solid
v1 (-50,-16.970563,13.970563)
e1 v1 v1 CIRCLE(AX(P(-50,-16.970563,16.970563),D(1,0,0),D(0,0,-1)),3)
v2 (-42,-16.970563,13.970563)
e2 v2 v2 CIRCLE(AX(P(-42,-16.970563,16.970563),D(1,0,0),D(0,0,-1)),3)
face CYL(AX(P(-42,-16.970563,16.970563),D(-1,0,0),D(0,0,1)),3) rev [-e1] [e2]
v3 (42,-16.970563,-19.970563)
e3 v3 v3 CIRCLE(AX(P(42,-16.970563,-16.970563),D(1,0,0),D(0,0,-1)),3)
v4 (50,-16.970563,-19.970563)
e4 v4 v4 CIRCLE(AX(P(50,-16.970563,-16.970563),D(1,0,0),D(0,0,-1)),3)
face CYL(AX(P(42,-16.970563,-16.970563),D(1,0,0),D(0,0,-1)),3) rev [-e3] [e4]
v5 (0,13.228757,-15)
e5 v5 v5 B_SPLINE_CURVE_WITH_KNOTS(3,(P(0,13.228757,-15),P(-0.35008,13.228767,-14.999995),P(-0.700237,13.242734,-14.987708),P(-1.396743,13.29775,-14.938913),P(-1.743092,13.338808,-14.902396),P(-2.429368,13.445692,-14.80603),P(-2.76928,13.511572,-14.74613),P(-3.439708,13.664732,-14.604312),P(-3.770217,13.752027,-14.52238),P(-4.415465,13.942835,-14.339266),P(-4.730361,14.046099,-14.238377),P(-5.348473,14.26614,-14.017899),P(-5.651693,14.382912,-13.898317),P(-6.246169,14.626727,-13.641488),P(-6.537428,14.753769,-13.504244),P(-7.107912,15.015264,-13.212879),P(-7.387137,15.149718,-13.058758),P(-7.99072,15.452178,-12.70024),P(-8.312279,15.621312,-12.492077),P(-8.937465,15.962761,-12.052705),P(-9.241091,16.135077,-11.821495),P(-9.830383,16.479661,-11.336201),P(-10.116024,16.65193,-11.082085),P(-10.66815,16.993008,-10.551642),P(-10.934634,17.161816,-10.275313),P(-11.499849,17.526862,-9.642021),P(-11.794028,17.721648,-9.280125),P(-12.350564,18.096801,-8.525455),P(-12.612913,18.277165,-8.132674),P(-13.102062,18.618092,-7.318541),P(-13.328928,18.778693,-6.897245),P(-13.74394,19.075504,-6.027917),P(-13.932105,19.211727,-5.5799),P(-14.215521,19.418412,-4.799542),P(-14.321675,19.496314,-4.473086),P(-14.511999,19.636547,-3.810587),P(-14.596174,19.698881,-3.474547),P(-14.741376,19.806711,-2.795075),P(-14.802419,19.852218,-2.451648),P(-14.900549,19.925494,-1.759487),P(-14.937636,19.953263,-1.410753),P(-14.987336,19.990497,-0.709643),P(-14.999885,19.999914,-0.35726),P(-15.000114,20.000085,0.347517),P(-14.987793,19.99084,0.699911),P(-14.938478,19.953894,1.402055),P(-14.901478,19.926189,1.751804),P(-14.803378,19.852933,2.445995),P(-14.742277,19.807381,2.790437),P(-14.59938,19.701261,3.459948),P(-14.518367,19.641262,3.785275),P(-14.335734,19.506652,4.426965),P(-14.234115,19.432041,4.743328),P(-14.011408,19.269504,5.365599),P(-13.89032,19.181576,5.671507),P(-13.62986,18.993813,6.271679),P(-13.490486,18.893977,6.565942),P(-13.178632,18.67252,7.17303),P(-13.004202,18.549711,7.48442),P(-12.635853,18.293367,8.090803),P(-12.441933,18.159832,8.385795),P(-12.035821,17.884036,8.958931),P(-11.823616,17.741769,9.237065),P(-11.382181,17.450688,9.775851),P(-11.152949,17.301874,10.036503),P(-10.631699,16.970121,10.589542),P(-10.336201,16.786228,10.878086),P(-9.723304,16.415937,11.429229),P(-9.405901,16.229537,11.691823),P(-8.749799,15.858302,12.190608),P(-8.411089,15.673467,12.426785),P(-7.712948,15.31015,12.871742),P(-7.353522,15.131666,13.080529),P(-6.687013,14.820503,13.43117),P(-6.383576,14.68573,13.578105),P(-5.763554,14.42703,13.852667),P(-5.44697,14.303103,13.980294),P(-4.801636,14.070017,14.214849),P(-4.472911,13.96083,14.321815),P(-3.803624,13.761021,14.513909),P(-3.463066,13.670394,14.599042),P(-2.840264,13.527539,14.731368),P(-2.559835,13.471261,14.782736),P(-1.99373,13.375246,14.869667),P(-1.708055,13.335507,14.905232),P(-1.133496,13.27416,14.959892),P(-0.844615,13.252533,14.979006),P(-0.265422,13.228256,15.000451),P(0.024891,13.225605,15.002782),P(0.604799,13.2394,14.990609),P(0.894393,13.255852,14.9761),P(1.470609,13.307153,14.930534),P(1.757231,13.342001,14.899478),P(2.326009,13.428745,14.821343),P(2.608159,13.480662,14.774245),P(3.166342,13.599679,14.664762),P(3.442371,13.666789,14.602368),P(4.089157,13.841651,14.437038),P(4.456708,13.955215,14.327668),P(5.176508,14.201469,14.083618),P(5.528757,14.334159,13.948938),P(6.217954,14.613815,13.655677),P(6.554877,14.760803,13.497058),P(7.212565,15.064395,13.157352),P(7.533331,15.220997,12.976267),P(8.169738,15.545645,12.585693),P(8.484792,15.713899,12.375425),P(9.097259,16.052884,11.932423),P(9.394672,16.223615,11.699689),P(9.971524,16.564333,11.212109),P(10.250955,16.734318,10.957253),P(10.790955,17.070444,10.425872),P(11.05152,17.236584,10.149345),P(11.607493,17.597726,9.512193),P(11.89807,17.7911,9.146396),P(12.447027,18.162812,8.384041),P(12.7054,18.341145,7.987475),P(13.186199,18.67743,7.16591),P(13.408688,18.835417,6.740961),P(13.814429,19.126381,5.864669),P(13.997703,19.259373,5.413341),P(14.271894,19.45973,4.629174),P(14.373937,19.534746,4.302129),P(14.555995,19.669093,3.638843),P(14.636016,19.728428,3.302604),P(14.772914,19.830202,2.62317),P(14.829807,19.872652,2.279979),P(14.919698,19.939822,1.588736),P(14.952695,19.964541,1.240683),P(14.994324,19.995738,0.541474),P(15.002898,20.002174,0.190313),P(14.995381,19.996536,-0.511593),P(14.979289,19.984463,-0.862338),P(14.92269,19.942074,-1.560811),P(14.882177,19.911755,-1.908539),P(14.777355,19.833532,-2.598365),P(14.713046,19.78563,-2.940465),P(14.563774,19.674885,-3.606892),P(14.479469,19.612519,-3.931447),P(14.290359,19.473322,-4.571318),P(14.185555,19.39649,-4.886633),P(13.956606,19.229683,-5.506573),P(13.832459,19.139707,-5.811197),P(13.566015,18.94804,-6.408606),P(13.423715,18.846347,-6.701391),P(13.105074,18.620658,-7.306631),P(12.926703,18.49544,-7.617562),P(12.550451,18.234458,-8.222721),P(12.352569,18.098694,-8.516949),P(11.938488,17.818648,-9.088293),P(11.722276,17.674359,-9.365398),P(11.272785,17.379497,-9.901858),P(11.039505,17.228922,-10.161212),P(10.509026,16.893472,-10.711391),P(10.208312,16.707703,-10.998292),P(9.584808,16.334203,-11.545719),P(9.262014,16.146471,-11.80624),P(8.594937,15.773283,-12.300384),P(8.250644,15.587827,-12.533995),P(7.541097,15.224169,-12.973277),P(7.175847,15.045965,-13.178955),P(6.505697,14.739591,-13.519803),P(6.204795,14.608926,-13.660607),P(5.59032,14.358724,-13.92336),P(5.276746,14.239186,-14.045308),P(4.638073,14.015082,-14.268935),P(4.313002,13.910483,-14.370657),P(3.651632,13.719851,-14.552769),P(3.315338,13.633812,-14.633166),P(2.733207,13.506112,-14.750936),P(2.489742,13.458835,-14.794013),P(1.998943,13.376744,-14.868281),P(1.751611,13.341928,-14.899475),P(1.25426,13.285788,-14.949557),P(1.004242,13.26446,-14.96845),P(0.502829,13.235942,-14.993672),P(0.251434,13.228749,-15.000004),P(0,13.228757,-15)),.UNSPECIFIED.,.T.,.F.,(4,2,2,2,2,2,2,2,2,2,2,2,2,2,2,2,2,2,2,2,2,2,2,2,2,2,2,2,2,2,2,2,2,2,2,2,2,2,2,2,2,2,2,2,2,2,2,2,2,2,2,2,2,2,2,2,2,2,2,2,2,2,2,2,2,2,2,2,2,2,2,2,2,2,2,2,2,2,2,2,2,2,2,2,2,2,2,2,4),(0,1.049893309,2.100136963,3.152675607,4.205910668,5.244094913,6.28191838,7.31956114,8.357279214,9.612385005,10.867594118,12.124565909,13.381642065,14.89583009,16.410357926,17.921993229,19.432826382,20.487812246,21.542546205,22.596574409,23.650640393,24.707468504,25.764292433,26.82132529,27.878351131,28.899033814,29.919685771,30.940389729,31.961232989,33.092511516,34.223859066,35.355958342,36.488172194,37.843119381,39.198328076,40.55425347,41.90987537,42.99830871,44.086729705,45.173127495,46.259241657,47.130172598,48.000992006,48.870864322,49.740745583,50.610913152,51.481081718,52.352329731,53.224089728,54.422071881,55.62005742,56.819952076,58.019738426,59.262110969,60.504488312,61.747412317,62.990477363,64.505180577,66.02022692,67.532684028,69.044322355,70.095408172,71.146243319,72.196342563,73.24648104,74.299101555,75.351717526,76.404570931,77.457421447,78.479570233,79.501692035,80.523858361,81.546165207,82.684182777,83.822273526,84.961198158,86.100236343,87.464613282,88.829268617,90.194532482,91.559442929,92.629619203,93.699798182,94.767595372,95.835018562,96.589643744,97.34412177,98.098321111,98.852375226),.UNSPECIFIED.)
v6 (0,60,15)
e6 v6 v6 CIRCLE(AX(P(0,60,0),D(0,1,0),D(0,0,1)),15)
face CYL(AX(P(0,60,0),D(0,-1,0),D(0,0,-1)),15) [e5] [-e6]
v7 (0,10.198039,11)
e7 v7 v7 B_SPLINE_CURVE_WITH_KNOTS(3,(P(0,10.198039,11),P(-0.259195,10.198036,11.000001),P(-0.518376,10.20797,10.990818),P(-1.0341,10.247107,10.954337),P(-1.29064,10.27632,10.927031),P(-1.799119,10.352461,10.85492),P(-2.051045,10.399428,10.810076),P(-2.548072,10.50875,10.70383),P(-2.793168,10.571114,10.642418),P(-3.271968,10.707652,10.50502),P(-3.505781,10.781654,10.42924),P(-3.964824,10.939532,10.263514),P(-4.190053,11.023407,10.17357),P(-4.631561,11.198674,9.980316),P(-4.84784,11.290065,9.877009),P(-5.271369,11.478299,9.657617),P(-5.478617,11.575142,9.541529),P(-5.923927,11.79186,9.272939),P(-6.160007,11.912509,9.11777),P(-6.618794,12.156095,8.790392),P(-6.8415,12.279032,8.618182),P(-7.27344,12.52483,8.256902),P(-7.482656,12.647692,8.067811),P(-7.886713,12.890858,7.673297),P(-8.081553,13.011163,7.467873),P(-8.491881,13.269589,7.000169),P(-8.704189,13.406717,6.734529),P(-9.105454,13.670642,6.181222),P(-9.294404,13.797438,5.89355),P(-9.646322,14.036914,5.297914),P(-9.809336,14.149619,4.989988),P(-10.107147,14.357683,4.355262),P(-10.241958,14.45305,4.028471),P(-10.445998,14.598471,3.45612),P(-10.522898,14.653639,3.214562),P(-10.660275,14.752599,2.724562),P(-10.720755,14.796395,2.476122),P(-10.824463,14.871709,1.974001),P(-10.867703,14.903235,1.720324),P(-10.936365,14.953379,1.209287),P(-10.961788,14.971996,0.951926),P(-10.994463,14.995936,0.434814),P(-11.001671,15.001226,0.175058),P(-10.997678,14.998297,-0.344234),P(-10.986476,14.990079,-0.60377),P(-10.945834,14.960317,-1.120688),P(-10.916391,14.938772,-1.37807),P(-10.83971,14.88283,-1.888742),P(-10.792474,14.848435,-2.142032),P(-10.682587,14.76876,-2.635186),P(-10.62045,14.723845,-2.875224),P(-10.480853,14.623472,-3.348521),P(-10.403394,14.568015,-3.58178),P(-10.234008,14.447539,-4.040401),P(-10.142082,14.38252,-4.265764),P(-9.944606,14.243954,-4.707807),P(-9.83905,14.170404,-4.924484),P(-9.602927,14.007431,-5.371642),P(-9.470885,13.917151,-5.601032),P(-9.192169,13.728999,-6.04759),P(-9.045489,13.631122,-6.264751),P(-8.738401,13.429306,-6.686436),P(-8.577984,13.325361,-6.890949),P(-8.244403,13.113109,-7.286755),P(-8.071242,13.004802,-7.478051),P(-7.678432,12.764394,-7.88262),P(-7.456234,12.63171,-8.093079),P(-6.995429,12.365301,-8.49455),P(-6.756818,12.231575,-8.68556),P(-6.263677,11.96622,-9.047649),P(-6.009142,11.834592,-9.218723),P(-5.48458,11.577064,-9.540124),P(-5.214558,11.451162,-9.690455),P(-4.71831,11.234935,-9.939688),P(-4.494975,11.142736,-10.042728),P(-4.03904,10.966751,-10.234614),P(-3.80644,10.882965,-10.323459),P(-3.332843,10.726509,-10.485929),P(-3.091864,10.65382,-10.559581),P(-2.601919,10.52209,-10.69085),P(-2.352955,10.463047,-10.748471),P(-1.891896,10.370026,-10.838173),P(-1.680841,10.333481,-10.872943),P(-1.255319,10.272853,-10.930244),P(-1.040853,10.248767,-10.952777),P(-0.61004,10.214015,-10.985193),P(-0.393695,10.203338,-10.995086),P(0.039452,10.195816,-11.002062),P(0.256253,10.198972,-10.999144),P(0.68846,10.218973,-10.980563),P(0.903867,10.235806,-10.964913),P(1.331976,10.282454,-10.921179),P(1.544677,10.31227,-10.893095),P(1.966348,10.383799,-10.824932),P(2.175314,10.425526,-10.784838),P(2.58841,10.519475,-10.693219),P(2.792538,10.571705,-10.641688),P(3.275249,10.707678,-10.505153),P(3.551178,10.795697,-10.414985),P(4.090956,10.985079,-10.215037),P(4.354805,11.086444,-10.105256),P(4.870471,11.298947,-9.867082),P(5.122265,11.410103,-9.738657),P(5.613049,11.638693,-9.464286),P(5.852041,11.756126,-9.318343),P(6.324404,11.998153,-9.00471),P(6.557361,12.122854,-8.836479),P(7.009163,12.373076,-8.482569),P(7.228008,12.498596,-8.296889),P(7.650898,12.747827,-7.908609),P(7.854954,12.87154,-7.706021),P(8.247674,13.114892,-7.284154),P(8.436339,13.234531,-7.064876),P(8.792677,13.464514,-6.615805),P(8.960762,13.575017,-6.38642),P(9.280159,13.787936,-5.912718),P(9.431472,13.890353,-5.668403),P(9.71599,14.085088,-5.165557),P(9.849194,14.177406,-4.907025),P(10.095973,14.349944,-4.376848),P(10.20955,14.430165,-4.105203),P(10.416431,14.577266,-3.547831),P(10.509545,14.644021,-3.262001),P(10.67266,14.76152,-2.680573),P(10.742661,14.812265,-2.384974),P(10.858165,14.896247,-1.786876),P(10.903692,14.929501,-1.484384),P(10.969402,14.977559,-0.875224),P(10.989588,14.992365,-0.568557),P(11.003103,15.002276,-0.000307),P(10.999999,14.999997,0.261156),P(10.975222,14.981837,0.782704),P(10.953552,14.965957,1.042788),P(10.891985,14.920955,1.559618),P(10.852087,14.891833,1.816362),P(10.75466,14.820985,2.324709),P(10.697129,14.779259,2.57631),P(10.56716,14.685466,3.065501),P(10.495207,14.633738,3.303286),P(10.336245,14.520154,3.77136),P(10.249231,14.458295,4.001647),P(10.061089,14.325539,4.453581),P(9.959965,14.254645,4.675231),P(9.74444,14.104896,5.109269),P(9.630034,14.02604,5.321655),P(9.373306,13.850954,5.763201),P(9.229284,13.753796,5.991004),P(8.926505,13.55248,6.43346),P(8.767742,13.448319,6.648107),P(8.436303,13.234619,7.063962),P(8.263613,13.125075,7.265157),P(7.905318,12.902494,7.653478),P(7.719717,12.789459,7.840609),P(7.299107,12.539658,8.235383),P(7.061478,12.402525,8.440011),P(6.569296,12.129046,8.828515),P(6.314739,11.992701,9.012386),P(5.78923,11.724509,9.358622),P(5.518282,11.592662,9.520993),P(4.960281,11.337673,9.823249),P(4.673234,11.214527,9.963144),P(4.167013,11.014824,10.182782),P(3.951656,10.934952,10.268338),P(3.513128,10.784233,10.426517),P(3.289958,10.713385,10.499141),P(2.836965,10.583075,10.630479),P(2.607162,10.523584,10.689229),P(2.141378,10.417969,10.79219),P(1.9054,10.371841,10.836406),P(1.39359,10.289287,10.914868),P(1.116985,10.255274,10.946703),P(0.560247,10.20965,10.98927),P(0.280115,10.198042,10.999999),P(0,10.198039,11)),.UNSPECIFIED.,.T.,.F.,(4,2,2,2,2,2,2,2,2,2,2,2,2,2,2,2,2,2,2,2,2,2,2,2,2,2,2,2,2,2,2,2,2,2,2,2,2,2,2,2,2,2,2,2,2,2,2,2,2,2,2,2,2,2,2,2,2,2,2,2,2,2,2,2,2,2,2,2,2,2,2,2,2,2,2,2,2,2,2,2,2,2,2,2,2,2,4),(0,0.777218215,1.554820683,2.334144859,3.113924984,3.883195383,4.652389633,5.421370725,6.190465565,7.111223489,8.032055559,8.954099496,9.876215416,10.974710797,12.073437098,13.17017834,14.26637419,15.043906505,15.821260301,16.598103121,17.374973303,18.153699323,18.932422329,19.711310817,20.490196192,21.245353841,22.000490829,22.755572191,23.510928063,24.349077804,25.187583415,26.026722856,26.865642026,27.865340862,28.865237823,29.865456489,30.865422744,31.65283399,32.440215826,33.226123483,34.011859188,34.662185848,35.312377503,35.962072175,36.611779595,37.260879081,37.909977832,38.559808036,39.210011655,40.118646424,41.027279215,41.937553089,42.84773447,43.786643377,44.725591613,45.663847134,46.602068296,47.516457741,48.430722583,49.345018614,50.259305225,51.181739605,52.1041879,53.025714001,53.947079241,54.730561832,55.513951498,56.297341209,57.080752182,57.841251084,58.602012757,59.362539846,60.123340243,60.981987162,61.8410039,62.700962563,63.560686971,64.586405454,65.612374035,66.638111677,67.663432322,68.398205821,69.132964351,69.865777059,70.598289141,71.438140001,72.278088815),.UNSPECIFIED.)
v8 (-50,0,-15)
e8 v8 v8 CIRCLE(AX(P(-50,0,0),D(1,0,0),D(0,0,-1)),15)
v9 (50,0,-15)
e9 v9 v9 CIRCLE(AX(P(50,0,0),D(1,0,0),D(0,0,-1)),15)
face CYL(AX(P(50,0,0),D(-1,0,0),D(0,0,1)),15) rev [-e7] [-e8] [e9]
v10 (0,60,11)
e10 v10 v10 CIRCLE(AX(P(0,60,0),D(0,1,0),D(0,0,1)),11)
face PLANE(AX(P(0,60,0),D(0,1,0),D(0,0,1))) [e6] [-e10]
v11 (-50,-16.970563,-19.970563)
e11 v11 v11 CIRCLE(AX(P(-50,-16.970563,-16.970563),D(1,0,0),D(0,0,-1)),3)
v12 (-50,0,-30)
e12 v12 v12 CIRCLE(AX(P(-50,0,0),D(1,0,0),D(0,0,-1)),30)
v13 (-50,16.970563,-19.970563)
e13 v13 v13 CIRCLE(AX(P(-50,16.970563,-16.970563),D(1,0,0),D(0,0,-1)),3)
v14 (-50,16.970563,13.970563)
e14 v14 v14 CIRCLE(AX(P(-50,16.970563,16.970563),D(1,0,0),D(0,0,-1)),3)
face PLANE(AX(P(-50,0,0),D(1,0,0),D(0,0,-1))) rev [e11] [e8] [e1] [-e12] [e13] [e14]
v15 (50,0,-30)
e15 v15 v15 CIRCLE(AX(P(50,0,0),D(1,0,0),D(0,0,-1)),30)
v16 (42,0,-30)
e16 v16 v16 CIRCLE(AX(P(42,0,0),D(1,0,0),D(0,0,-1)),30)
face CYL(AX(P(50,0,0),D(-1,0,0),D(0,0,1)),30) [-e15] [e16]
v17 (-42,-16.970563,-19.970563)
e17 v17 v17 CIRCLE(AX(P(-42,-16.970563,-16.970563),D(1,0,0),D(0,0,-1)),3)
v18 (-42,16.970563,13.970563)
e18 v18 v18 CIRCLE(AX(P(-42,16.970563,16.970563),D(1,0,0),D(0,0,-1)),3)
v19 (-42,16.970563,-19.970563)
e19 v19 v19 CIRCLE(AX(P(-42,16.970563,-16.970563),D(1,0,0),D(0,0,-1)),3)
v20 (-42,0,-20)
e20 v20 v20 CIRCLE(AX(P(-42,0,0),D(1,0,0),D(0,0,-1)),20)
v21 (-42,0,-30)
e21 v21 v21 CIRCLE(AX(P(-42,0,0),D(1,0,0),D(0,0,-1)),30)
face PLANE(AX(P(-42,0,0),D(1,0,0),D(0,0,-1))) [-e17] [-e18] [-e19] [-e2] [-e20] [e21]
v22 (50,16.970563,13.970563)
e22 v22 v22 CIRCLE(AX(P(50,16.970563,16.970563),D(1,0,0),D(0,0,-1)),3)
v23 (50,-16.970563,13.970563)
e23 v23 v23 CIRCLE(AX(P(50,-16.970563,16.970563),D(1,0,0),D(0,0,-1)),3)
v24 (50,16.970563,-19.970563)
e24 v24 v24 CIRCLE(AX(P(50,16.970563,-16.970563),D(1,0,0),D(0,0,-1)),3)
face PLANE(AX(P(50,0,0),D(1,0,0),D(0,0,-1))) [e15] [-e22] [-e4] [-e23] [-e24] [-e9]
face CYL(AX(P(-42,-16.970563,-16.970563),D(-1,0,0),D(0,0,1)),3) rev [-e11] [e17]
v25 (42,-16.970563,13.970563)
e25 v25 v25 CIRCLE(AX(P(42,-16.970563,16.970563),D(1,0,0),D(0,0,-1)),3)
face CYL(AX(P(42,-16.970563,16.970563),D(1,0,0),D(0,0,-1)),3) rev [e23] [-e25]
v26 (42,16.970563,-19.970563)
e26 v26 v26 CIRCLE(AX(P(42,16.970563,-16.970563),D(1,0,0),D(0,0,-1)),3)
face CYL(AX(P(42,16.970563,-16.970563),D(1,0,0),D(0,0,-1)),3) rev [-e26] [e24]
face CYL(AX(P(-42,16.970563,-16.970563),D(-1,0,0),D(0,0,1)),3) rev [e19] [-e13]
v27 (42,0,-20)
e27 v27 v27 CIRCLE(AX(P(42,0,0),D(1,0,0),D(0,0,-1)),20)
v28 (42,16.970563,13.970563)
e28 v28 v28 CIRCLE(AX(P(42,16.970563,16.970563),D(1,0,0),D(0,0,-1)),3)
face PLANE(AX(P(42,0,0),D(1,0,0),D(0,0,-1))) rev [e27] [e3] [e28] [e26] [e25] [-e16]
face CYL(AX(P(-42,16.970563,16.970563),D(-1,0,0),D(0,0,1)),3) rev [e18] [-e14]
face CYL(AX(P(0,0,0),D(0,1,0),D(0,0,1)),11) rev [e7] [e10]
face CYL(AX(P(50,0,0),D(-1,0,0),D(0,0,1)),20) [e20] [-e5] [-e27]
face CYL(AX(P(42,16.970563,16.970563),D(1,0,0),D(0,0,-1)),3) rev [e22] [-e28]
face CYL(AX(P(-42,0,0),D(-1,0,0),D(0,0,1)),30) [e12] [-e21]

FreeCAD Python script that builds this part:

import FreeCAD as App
import Part
import Sketcher

doc = App.newDocument("Part")
body = doc.addObject("PartDesign::Body", "Body")

# Sketch on YZ plane
sketch1 = body.newObject("Sketcher::SketchObject", "Sketch")
sketch1.AttachmentSupport = (doc.getObject("YZ_Plane"), [""])
sketch1.MapMode = "FlatFace"
sketch1.AttachmentOffset = App.Placement(App.Vector(0, 0, -50), App.Rotation())
sketch1.addGeometry(Part.Circle(App.Vector(0, 0, 0), App.Vector(0, 0, 1), 20), False)
sketch1.addConstraint(Sketcher.Constraint("Coincident", 0, 3, -1, 1))
sketch1.addConstraint(Sketcher.Constraint("Diameter", 0, 40.0))
pad1 = body.newObject("PartDesign::Pad", "Pad")
pad1.Profile = sketch1
pad1.Length = 100

# Sketch on YZ plane
sketch2 = body.newObject("Sketcher::SketchObject", "Sketch001")
sketch2.AttachmentSupport = (doc.getObject("YZ_Plane"), [""])
sketch2.MapMode = "FlatFace"
sketch2.AttachmentOffset = App.Placement(App.Vector(0, 0, -50), App.Rotation())
sketch2.addGeometry(Part.Circle(App.Vector(0, 0, 0), App.Vector(0, 0, 1), 30), False)
sketch2.addConstraint(Sketcher.Constraint("Coincident", 0, 3, -1, 1))
sketch2.addConstraint(Sketcher.Constraint("Diameter", 0, 60.0))
pad2 = body.newObject("PartDesign::Pad", "Pad001")
pad2.Profile = sketch2
pad2.Length = 8

# Sketch on YZ plane
sketch3 = body.newObject("Sketcher::SketchObject", "Sketch002")
sketch3.AttachmentSupport = (doc.getObject("YZ_Plane"), [""])
sketch3.MapMode = "FlatFace"
sketch3.AttachmentOffset = App.Placement(App.Vector(0, 0, 42), App.Rotation())
sketch3.addGeometry(Part.Circle(App.Vector(0, 0, 0), App.Vector(0, 0, 1), 30), False)
sketch3.addConstraint(Sketcher.Constraint("Coincident", 0, 3, -1, 1))
sketch3.addConstraint(Sketcher.Constraint("Diameter", 0, 60.0))
pad3 = body.newObject("PartDesign::Pad", "Pad002")
pad3.Profile = sketch3
pad3.Length = 8

# Sketch on XZ plane
sketch4 = body.newObject("Sketcher::SketchObject", "Sketch003")
sketch4.AttachmentSupport = (doc.getObject("XZ_Plane"), [""])
sketch4.MapMode = "FlatFace"
sketch4.addGeometry(Part.Circle(App.Vector(0, 0, 0), App.Vector(0, 0, 1), 15), False)
sketch4.addConstraint(Sketcher.Constraint("Coincident", 0, 3, -1, 1))
sketch4.addConstraint(Sketcher.Constraint("Diameter", 0, 30.0))
pad4 = body.newObject("PartDesign::Pad", "Pad003")
pad4.Profile = sketch4
pad4.Length = 60
pad4.Reversed = True

# Sketch on YZ plane
sketch5 = body.newObject("Sketcher::SketchObject", "Sketch004")
sketch5.AttachmentSupport = (doc.getObject("YZ_Plane"), [""])
sketch5.MapMode = "FlatFace"
sketch5.AttachmentOffset = App.Placement(App.Vector(0, 0, -50), App.Rotation())
sketch5.addGeometry(Part.Circle(App.Vector(0, 0, 0), App.Vector(0, 0, 1), 15), False)
sketch5.addConstraint(Sketcher.Constraint("Coincident", 0, 3, -1, 1))
sketch5.addConstraint(Sketcher.Constraint("Diameter", 0, 30.0))
pocket1 = body.newObject("PartDesign::Pocket", "Pocket")
pocket1.Profile = sketch5
pocket1.Type = "ThroughAll"
pocket1.Reversed = True

# Sketch on XZ plane
sketch6 = body.newObject("Sketcher::SketchObject", "Sketch005")
sketch6.AttachmentSupport = (doc.getObject("XZ_Plane"), [""])
sketch6.MapMode = "FlatFace"
sketch6.AttachmentOffset = App.Placement(App.Vector(0, 0, -60), App.Rotation())
sketch6.addGeometry(Part.Circle(App.Vector(0, 0, 0), App.Vector(0, 0, 1), 11), False)
sketch6.addConstraint(Sketcher.Constraint("Coincident", 0, 3, -1, 1))
sketch6.addConstraint(Sketcher.Constraint("Diameter", 0, 22.0))
pocket2 = body.newObject("PartDesign::Pocket", "Pocket001")
pocket2.Profile = sketch6
pocket2.Length = 60
pocket2.Reversed = True

# Sketch on YZ plane
sketch7 = body.newObject("Sketcher::SketchObject", "Sketch006")
sketch7.AttachmentSupport = (doc.getObject("YZ_Plane"), [""])
sketch7.MapMode = "FlatFace"
sketch7.AttachmentOffset = App.Placement(App.Vector(0, 0, -50), App.Rotation())
sketch7.addGeometry(Part.Circle(App.Vector(17, 17, 0), App.Vector(0, 0, 1), 3), False)
sketch7.addGeometry(Part.Circle(App.Vector(17, -17, 0), App.Vector(0, 0, 1), 3), False)
sketch7.addGeometry(Part.Circle(App.Vector(-17, -17, 0), App.Vector(0, 0, 1), 3), False)
sketch7.addGeometry(Part.Circle(App.Vector(-17, 17, 0), App.Vector(0, 0, 1), 3), False)
sketch7.addConstraint(Sketcher.Constraint("Equal", 0, 1))
sketch7.addConstraint(Sketcher.Constraint("Equal", 1, 2))
sketch7.addConstraint(Sketcher.Constraint("Equal", 2, 3))
sketch7.addConstraint(Sketcher.Constraint("Symmetric", 0, 3, 2, 3, -1, 1))
sketch7.addConstraint(Sketcher.Constraint("Symmetric", 1, 3, 3, 3, -1, 1))
sketch7.addConstraint(Sketcher.Constraint("Symmetric", 1, 3, 2, 3, -2))
sketch7.addConstraint(Sketcher.Constraint("Diameter", 0, 6.0))
sketch7.addConstraint(Sketcher.Constraint("DistanceX", -1, 1, 0, 3, 16.970563))
sketch7.addConstraint(Sketcher.Constraint("DistanceY", -1, 1, 0, 3, 16.970563))
pocket3 = body.newObject("PartDesign::Pocket", "Pocket002")
pocket3.Profile = sketch7
pocket3.Length = 8
pocket3.Reversed = True

# Sketch on YZ plane
sketch8 = body.newObject("Sketcher::SketchObject", "Sketch007")
sketch8.AttachmentSupport = (doc.getObject("YZ_Plane"), [""])
sketch8.MapMode = "FlatFace"
sketch8.AttachmentOffset = App.Placement(App.Vector(0, 0, 42), App.Rotation())
sketch8.addGeometry(Part.Circle(App.Vector(17, 17, 0), App.Vector(0, 0, 1), 3), False)
sketch8.addGeometry(Part.Circle(App.Vector(17, -17, 0), App.Vector(0, 0, 1), 3), False)
sketch8.addGeometry(Part.Circle(App.Vector(-17, -17, 0), App.Vector(0, 0, 1), 3), False)
sketch8.addGeometry(Part.Circle(App.Vector(-17, 17, 0), App.Vector(0, 0, 1), 3), False)
sketch8.addConstraint(Sketcher.Constraint("Equal", 0, 1))
sketch8.addConstraint(Sketcher.Constraint("Equal", 1, 2))
sketch8.addConstraint(Sketcher.Constraint("Equal", 2, 3))
sketch8.addConstraint(Sketcher.Constraint("Symmetric", 0, 3, 2, 3, -1, 1))
sketch8.addConstraint(Sketcher.Constraint("Symmetric", 1, 3, 3, 3, -1, 1))
sketch8.addConstraint(Sketcher.Constraint("Symmetric", 1, 3, 2, 3, -2))
sketch8.addConstraint(Sketcher.Constraint("Diameter", 0, 6.0))
sketch8.addConstraint(Sketcher.Constraint("DistanceX", -1, 1, 0, 3, 16.970563))
sketch8.addConstraint(Sketcher.Constraint("DistanceY", -1, 1, 0, 3, 16.970563))
pocket4 = body.newObject("PartDesign::Pocket", "Pocket003")
pocket4.Profile = sketch8
pocket4.Length = 8
pocket4.Reversed = True

doc.recompute()
